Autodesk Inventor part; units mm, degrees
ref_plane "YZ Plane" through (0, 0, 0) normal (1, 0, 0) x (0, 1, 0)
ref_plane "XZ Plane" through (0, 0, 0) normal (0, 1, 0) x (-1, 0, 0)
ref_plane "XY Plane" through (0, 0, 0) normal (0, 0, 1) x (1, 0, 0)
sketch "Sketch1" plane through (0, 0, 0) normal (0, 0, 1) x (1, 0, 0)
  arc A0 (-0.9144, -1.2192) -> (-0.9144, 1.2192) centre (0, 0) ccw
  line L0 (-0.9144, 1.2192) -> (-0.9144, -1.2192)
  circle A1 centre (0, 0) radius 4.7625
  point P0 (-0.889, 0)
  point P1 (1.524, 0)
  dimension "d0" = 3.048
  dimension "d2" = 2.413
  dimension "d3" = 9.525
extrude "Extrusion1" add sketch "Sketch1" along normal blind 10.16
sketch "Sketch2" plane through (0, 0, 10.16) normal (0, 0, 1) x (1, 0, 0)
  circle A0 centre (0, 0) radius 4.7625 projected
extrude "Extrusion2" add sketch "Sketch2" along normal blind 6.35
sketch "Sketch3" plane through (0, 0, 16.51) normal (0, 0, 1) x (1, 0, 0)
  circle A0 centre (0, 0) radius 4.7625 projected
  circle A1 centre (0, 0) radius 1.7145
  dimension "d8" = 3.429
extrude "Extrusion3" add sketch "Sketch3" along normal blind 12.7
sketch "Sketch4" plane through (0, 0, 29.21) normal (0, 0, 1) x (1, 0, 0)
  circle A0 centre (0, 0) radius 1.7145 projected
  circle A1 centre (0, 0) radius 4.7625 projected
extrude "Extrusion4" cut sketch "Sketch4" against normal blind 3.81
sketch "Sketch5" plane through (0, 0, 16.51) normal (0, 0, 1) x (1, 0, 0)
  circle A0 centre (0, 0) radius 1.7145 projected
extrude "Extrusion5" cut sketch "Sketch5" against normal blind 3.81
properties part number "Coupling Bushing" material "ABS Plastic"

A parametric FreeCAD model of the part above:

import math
import FreeCAD as App
import Part
import Sketcher
from FreeCAD import Vector
Q = App.Units.Quantity

doc = App.newDocument("Part")
body = doc.addObject("PartDesign::Body", "Body")

# Sketch on XY plane
sketch1 = doc.addObject("Sketcher::SketchObject", "Sketch")
body.addObject(sketch1)
sketch1.AttachmentSupport = (doc.XY_Plane, [""])
sketch1.MapMode = "FlatFace"
sketch1.addGeometry(Part.Circle(Vector(0, 0, 0), Vector(0, 0, 1), 4.8), False)
sketch1.addGeometry(Part.ArcOfCircle(Part.Circle(Vector(0, 0, 0), Vector(0, 0, 1), 1.5), math.radians(-127), math.radians(127)), False)
sketch1.addGeometry(Part.LineSegment(Vector(-0.9, -1.2, 0), Vector(-0.9, 1.2, 0)), False)
sketch1.addConstraint(Sketcher.Constraint("Coincident", 1, 1, 2, 1))
sketch1.addConstraint(Sketcher.Constraint("Coincident", 2, 2, 1, 2))
sketch1.addConstraint(Sketcher.Constraint("Vertical", 2))
sketch1.addConstraint(Sketcher.Constraint("Coincident", 0, 3, -1, 1))
sketch1.addConstraint(Sketcher.Constraint("Coincident", 1, 3, -1, 1))
sketch1.addConstraint(Sketcher.Constraint("Radius", 1, Q("0.06 in")))
sketch1.addConstraint(Sketcher.Constraint("Diameter", 0, Q("0.375 in")))
sketch1.addConstraint(Sketcher.Constraint("DistanceY", 2, 1, 2, 2, Q("0.096 in")))
pad1 = doc.addObject("PartDesign::Pad", "Pad")
body.addObject(pad1)
pad1.Profile = sketch1
pad1.Length = Q("0.4 in")

# Sketch on XY plane
sketch2 = doc.addObject("Sketcher::SketchObject", "Sketch001")
body.addObject(sketch2)
sketch2.AttachmentSupport = (doc.XY_Plane, [""])
sketch2.MapMode = "FlatFace"
sketch2.AttachmentOffset = App.Placement(Vector(0, 0, 0.4 * 25.4), App.Rotation())
sketch2.addGeometry(Part.Circle(Vector(0, 0, 0), Vector(0, 0, 1), 4.8), False)
sketch2.addConstraint(Sketcher.Constraint("Coincident", 0, 3, -1, 1))
sketch2.addConstraint(Sketcher.Constraint("Diameter", 0, Q("0.375 in")))
pad2 = doc.addObject("PartDesign::Pad", "Pad001")
body.addObject(pad2)
pad2.Profile = sketch2
pad2.Length = Q("0.25 in")

# Sketch on XY plane
sketch3 = doc.addObject("Sketcher::SketchObject", "Sketch002")
body.addObject(sketch3)
sketch3.AttachmentSupport = (doc.XY_Plane, [""])
sketch3.MapMode = "FlatFace"
sketch3.AttachmentOffset = App.Placement(Vector(0, 0, 0.65 * 25.4), App.Rotation())
sketch3.addGeometry(Part.Circle(Vector(0, 0, 0), Vector(0, 0, 1), 4.8), False)
sketch3.addGeometry(Part.Circle(Vector(0, 0, 0), Vector(0, 0, 1), 1.7), False)
sketch3.addConstraint(Sketcher.Constraint("Coincident", 0, 3, -1, 1))
sketch3.addConstraint(Sketcher.Constraint("Coincident", 1, 3, -1, 1))
sketch3.addConstraint(Sketcher.Constraint("Diameter", 1, Q("0.135 in")))
sketch3.addConstraint(Sketcher.Constraint("Diameter", 0, Q("0.375 in")))
pad3 = doc.addObject("PartDesign::Pad", "Pad002")
body.addObject(pad3)
pad3.Profile = sketch3
pad3.Length = Q("0.5 in")

# Sketch on XY plane
sketch4 = doc.addObject("Sketcher::SketchObject", "Sketch003")
body.addObject(sketch4)
sketch4.AttachmentSupport = (doc.XY_Plane, [""])
sketch4.MapMode = "FlatFace"
sketch4.AttachmentOffset = App.Placement(Vector(0, 0, 1.15 * 25.4), App.Rotation())
sketch4.addGeometry(Part.Circle(Vector(0, 0, 0), Vector(0, 0, 1), 4.8), False)
sketch4.addGeometry(Part.Circle(Vector(0, 0, 0), Vector(0, 0, 1), 1.7), False)
sketch4.addConstraint(Sketcher.Constraint("Coincident", 0, 3, -1, 1))
sketch4.addConstraint(Sketcher.Constraint("Coincident", 1, 3, -1, 1))
sketch4.addConstraint(Sketcher.Constraint("Diameter", 0, Q("0.375 in")))
sketch4.addConstraint(Sketcher.Constraint("Diameter", 1, Q("0.135 in")))
pocket1 = doc.addObject("PartDesign::Pocket", "Pocket")
body.addObject(pocket1)
pocket1.Profile = sketch4
pocket1.Length = Q("0.15 in")

# Sketch on XY plane
sketch5 = doc.addObject("Sketcher::SketchObject", "Sketch004")
body.addObject(sketch5)
sketch5.AttachmentSupport = (doc.XY_Plane, [""])
sketch5.MapMode = "FlatFace"
sketch5.AttachmentOffset = App.Placement(Vector(0, 0, 0.65 * 25.4), App.Rotation())
sketch5.addGeometry(Part.Circle(Vector(0, 0, 0), Vector(0, 0, 1), 1.7), False)
sketch5.addConstraint(Sketcher.Constraint("Coincident", 0, 3, -1, 1))
sketch5.addConstraint(Sketcher.Constraint("Diameter", 0, Q("0.135 in")))
pocket2 = doc.addObject("PartDesign::Pocket", "Pocket001")
body.addObject(pocket2)
pocket2.Profile = sketch5
pocket2.Length = Q("0.15 in")

doc.recompute()
